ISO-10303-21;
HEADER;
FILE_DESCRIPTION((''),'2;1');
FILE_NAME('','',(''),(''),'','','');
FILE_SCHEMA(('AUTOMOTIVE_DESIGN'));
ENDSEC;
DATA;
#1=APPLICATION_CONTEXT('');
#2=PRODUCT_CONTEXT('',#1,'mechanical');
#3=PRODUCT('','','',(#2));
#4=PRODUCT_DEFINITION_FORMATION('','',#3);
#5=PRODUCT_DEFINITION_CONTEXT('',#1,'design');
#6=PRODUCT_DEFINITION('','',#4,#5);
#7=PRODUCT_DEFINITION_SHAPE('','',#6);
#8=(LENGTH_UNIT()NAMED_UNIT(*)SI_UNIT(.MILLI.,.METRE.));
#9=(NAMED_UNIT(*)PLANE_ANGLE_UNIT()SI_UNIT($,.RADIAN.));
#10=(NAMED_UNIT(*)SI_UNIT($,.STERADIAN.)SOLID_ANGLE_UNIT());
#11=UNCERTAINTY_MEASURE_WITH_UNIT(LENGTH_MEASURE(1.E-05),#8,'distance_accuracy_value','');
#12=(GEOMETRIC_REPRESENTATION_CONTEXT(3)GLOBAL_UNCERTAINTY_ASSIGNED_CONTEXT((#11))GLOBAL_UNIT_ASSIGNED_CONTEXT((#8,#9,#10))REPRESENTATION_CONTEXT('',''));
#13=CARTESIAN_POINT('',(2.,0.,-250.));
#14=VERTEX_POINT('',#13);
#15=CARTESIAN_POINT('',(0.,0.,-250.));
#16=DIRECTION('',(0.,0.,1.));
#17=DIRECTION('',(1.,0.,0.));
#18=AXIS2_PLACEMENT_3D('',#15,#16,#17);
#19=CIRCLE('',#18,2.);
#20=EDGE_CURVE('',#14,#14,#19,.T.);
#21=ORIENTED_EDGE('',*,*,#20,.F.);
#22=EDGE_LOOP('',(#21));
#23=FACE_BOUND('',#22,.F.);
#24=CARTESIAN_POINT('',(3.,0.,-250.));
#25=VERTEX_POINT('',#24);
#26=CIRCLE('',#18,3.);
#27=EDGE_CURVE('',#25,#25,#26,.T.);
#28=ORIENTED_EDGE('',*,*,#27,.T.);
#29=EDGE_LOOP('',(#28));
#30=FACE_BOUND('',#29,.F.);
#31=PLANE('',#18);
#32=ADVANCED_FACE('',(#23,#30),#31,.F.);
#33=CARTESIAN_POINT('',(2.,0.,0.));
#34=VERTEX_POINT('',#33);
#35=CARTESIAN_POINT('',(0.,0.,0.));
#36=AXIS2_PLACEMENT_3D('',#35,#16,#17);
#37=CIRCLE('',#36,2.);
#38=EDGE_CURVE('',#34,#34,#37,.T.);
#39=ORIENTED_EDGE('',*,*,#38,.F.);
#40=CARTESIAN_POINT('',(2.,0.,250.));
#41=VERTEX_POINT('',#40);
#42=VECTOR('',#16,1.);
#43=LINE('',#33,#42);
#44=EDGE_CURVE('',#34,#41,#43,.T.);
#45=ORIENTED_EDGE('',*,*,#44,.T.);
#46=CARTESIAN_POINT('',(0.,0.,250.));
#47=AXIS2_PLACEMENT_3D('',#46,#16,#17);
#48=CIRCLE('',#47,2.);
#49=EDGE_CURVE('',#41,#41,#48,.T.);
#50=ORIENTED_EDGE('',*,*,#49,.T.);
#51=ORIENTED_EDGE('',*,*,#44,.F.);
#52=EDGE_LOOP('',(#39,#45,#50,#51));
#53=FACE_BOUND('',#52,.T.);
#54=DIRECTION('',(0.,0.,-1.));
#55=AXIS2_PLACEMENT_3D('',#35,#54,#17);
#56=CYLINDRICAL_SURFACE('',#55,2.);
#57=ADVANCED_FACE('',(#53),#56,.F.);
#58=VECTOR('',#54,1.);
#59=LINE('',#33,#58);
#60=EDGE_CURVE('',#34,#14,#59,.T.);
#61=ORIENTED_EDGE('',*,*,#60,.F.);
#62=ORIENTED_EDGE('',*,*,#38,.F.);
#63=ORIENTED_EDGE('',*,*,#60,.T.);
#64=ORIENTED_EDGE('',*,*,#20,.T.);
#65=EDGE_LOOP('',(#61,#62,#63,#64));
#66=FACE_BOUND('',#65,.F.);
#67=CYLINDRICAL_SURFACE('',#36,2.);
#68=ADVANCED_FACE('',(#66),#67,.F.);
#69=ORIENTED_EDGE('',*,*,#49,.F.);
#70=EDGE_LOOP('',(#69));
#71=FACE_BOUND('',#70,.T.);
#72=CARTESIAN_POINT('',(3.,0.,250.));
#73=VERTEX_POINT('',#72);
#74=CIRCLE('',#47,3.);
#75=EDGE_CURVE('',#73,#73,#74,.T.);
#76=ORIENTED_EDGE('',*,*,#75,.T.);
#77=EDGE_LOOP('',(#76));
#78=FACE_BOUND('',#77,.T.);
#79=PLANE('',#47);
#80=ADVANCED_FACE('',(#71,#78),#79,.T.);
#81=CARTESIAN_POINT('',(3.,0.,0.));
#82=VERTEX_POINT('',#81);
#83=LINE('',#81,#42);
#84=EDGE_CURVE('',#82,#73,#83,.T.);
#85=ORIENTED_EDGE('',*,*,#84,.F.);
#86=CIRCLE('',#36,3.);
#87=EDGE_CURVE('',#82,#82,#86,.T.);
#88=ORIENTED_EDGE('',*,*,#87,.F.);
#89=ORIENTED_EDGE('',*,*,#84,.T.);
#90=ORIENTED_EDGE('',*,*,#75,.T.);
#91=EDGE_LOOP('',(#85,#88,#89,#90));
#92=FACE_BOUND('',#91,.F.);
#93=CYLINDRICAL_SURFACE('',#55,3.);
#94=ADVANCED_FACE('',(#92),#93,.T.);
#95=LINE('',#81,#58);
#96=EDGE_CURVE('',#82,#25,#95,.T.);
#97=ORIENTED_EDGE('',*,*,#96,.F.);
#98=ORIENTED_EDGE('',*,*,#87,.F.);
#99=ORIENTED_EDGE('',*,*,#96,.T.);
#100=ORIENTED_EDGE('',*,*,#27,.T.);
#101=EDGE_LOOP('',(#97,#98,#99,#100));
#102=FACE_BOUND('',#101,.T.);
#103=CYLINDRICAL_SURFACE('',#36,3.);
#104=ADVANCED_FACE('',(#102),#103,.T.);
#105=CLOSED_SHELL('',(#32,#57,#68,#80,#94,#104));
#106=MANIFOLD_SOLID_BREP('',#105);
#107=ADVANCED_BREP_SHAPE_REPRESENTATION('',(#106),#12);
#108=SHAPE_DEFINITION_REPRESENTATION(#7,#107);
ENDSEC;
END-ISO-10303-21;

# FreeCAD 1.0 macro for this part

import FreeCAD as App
import Part
import Sketcher
from FreeCAD import Vector
Q = App.Units.Quantity

doc = App.newDocument("Part")
body = doc.addObject("PartDesign::Body", "Body")

# Sketch on XY plane
sketch1 = body.newObject("Sketcher::SketchObject", "Sketch")
sketch1.AttachmentSupport = (doc.getObject("XY_Plane"), [""])
sketch1.MapMode = "FlatFace"
sketch1.addGeometry([
    Part.Circle(Vector(0, 0, 0), Vector(0, 0, 1), 3),
    Part.Circle(Vector(0, 0, 0), Vector(0, 0, 1), 2),
], False)
sketch1.addConstraint([
    Sketcher.Constraint("Coincident", 0, 3, -1, 1),
    Sketcher.Constraint("Coincident", 1, 3, -1, 1),
    Sketcher.Constraint("Diameter", 0, Q("6 mm")),
    Sketcher.Constraint("Diameter", 1, Q("4 mm")),
])
pad1 = body.newObject("PartDesign::Pad", "Pad")
pad1.Profile = sketch1
pad1.Length = 500
pad1.Midplane = True

doc.recompute()
